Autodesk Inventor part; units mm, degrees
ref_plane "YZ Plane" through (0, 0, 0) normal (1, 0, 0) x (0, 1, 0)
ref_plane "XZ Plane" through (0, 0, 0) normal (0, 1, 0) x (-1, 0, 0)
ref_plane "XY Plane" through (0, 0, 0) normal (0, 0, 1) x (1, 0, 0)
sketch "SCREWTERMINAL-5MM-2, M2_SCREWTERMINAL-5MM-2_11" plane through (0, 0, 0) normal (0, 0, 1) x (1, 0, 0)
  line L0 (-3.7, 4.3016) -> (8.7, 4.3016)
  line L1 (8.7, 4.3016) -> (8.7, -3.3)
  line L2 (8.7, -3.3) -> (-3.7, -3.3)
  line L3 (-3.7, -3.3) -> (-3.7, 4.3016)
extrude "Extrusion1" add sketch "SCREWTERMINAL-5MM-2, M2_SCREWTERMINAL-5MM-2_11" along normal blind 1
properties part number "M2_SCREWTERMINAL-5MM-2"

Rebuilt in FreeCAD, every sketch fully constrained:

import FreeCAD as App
import Part
import Sketcher

V = App.Vector
Q = App.Units.Quantity

doc = App.newDocument("Part")
body = doc.addObject("PartDesign::Body", "Body")

sketch1 = body.newObject("Sketcher::SketchObject", "Sketch")
sketch1.AttachmentSupport = (doc.getObject("XY_Plane"), [""])
sketch1.MapMode = "FlatFace"
sketch1.addGeometry([
    Part.LineSegment(V(8.7, 4.3016, 0), V(-3.7, 4.3016, 0)),
    Part.LineSegment(V(-3.7, 4.3016, 0), V(-3.7, -3.3, 0)),
    Part.LineSegment(V(-3.7, -3.3, 0), V(8.7, -3.3, 0)),
    Part.LineSegment(V(8.7, -3.3, 0), V(8.7, 4.3016, 0)),
], False)
sketch1.addConstraint([
    Sketcher.Constraint("Coincident", 0, 2, 1, 1),
    Sketcher.Constraint("Coincident", 1, 2, 2, 1),
    Sketcher.Constraint("Coincident", 2, 2, 3, 1),
    Sketcher.Constraint("Coincident", 3, 2, 0, 1),
    Sketcher.Constraint("Horizontal", 0),
    Sketcher.Constraint("Vertical", 1),
    Sketcher.Constraint("Horizontal", 2),
    Sketcher.Constraint("Vertical", 3),
    Sketcher.Constraint("DistanceX", 0, 2, 0, 1, Q("12.4 mm")),
    Sketcher.Constraint("DistanceX", 0, 2, -1, 1, Q("3.7 mm")),
    Sketcher.Constraint("DistanceY", 1, 2, -1, 1, Q("3.3 mm")),
    Sketcher.Constraint("DistanceY", 1, 2, 1, 1, Q("7.6016 mm")),
])
pad1 = body.newObject("PartDesign::Pad", "Pad")
pad1.Profile = sketch1
pad1.Length = 1

doc.recompute()
